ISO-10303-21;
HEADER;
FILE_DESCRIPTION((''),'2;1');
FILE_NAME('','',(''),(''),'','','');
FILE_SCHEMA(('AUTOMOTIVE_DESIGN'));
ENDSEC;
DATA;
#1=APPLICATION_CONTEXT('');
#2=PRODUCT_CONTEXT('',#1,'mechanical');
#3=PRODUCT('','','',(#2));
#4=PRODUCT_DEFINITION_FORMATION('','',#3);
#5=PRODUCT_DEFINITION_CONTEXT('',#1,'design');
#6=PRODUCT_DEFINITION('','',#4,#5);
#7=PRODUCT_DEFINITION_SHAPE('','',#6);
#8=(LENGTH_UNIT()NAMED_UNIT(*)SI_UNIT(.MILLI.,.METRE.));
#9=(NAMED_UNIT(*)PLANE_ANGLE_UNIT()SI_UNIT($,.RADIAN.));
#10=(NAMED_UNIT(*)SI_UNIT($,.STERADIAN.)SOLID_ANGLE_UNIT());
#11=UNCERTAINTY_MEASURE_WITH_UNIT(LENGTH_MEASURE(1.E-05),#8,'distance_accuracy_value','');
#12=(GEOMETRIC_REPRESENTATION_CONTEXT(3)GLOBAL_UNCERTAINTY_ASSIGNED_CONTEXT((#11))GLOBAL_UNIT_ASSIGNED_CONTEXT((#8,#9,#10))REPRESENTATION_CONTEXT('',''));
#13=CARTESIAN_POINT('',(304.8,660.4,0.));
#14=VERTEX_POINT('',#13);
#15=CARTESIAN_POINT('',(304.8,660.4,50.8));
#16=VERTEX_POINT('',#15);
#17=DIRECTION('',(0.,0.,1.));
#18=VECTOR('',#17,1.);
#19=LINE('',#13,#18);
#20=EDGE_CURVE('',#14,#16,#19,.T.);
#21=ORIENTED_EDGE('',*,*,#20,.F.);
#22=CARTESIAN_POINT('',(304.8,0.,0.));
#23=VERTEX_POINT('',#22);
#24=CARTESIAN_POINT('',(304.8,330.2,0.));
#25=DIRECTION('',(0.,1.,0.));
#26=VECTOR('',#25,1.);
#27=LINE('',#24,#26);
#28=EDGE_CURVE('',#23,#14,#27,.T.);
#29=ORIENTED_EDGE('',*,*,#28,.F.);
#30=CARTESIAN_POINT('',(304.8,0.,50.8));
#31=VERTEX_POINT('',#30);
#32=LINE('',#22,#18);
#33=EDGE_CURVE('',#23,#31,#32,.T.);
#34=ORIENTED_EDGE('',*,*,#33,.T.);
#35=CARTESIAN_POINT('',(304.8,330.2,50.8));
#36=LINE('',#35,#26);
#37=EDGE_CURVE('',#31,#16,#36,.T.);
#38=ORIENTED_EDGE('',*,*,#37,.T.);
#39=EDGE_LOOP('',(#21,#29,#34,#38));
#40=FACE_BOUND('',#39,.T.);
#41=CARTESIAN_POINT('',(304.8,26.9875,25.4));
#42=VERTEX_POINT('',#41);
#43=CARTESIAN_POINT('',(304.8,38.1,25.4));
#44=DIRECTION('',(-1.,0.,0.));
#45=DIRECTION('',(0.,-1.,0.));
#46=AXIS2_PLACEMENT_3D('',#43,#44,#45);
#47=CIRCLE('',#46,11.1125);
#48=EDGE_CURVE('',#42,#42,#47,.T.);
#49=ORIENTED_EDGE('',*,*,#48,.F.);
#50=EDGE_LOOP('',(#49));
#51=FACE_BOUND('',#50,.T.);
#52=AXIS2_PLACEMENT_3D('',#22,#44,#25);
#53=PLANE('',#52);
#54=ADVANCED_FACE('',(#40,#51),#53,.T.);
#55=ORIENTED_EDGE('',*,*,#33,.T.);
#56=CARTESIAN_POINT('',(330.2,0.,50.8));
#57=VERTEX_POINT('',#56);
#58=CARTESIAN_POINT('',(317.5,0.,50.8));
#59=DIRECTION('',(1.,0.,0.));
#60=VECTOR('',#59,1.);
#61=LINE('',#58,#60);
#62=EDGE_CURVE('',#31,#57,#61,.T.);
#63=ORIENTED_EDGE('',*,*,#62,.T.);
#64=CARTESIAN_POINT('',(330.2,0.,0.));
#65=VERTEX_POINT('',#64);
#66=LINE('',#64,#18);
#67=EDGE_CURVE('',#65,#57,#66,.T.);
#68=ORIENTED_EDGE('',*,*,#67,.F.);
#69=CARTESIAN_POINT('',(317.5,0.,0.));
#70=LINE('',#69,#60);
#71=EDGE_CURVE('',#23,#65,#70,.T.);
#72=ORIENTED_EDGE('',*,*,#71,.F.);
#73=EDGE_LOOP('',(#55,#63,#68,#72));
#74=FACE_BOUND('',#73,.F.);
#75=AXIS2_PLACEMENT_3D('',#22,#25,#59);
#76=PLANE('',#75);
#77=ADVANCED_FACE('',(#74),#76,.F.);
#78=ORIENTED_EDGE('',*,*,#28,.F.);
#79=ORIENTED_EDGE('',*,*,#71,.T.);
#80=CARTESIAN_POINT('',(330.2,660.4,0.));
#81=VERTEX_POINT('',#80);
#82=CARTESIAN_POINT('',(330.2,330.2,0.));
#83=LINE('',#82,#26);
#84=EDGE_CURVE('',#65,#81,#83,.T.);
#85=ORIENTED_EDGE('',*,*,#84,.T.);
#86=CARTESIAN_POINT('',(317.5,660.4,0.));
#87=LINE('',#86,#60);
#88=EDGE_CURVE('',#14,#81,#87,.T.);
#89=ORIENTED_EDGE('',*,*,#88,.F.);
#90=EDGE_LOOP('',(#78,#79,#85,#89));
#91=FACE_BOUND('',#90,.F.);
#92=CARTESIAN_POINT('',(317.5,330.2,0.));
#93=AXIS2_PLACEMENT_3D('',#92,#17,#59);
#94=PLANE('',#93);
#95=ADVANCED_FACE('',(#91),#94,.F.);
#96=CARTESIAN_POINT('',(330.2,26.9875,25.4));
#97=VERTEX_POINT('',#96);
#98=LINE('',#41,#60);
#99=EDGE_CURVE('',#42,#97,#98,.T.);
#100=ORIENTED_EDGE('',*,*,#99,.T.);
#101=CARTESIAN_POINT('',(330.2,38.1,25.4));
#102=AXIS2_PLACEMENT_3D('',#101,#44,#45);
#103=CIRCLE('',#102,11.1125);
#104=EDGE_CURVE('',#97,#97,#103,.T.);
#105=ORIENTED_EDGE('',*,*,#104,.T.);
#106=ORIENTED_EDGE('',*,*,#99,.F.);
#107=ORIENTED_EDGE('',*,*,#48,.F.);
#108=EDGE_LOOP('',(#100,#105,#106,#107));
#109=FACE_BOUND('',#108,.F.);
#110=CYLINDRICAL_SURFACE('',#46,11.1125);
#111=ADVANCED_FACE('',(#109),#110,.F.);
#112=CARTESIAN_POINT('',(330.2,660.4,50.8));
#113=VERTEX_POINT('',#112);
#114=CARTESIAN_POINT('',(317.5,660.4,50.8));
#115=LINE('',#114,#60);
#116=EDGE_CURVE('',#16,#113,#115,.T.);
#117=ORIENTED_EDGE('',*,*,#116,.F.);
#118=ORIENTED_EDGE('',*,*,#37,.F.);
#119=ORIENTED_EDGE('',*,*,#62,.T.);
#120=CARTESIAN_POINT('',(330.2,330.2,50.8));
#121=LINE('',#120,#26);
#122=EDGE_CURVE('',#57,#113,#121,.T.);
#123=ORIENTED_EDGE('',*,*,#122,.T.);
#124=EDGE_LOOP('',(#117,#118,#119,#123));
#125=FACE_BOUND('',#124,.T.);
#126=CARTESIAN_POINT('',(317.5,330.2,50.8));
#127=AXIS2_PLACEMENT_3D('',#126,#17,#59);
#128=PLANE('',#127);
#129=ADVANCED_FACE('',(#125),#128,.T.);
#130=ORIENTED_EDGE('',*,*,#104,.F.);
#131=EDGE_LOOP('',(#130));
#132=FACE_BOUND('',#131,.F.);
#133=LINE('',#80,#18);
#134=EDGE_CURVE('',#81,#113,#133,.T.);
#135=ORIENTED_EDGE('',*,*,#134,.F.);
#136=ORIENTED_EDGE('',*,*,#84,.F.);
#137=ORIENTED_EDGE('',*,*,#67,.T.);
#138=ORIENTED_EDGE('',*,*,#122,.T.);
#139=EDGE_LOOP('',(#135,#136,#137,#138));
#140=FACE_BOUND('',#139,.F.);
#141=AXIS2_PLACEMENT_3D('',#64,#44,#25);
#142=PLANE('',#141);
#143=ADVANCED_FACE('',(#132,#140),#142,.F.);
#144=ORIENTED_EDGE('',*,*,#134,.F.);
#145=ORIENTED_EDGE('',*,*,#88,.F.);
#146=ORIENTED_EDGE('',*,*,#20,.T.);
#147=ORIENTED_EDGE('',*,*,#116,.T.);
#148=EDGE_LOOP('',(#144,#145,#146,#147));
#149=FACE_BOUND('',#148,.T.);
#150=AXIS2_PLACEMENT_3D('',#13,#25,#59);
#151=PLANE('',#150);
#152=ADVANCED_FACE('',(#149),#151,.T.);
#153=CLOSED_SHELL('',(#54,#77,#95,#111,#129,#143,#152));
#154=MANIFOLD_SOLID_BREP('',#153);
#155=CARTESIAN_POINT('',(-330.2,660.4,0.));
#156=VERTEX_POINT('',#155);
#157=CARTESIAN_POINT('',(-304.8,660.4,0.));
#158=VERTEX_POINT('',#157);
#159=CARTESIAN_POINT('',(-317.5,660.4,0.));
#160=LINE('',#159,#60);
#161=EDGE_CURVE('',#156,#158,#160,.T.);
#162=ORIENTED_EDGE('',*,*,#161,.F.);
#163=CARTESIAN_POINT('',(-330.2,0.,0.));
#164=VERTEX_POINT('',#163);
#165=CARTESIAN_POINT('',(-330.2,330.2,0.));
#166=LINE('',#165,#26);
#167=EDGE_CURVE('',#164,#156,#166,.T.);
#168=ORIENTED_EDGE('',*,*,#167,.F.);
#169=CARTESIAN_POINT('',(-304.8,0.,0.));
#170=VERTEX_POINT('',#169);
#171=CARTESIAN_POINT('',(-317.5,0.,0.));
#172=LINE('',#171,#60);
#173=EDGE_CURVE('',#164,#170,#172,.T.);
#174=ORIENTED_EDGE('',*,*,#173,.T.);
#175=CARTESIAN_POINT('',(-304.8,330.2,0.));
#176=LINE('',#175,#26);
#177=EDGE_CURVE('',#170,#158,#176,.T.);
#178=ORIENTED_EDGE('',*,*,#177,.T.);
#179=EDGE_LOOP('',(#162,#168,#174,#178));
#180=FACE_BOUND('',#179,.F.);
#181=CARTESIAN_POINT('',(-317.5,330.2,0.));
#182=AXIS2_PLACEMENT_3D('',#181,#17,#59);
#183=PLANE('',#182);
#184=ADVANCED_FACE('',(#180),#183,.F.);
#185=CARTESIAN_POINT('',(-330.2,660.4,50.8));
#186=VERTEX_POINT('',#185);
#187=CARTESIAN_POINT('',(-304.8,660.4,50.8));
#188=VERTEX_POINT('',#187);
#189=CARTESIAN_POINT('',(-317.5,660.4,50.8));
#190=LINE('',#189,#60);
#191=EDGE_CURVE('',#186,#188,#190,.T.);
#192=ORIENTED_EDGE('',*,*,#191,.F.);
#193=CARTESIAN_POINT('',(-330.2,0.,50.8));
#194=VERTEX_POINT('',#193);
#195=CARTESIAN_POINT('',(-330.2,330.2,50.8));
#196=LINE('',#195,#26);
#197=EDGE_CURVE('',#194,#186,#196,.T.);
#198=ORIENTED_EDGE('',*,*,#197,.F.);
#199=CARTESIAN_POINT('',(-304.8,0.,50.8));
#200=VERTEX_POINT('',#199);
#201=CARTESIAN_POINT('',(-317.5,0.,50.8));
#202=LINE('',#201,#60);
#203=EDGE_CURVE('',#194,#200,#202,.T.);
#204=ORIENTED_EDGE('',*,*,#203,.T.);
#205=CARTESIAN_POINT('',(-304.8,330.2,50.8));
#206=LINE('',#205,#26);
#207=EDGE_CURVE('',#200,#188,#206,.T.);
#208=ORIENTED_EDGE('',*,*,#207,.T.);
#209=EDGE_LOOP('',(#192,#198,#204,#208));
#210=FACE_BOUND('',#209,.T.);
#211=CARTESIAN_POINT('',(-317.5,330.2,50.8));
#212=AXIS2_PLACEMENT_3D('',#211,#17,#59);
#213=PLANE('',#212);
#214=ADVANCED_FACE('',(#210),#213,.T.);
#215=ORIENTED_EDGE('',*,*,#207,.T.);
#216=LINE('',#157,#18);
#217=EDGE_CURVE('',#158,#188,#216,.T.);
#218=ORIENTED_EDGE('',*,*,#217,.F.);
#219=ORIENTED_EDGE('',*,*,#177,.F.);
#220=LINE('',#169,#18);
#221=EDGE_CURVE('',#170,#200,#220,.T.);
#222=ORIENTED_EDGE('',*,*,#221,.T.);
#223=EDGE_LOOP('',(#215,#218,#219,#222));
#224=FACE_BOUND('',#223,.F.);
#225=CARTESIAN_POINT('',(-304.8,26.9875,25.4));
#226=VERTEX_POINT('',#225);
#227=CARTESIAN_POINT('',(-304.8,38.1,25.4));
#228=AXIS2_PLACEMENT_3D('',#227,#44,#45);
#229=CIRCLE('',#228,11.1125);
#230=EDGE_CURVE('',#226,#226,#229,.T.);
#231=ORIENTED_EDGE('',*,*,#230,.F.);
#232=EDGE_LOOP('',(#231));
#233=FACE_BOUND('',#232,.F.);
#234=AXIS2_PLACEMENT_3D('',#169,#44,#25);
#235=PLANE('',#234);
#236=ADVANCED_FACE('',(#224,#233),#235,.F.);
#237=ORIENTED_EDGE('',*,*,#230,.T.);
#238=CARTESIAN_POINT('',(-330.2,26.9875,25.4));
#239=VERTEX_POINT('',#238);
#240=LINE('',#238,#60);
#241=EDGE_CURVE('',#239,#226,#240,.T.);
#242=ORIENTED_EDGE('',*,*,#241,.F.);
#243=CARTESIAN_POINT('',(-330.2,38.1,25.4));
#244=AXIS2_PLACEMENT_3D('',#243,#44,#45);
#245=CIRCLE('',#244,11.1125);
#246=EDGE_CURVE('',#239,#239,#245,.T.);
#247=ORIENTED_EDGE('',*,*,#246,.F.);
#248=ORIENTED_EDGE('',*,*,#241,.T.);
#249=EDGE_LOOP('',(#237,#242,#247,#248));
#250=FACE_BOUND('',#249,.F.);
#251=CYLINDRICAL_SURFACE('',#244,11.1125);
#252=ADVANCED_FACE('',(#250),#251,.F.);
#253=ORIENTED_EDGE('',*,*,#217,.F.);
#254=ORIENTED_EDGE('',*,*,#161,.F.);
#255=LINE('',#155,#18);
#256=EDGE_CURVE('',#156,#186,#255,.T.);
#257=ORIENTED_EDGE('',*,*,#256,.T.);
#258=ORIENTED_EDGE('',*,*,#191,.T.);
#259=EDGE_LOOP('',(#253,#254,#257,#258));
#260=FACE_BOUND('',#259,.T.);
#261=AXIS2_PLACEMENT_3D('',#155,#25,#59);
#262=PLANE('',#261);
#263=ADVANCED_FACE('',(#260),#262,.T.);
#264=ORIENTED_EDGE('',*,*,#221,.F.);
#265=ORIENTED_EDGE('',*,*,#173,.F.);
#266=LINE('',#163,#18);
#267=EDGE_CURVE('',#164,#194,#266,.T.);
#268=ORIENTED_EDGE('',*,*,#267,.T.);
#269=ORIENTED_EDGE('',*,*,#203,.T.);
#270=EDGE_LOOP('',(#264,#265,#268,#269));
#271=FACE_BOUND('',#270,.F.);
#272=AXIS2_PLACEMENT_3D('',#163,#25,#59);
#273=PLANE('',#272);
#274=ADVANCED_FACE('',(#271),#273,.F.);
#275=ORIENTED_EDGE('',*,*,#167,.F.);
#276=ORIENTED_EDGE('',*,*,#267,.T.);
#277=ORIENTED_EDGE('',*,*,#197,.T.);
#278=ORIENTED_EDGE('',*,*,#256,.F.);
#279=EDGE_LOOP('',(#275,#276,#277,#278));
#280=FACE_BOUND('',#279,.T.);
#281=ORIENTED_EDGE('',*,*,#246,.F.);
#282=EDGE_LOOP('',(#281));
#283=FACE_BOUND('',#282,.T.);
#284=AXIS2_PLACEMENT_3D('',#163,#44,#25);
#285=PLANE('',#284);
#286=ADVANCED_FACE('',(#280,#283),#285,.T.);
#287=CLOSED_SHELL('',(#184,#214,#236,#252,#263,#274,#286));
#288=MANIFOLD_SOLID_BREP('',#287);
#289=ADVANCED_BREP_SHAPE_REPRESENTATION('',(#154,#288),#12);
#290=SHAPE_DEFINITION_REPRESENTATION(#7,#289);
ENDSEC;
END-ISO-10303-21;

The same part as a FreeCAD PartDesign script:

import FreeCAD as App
import Part
import Sketcher
from FreeCAD import Vector
Q = App.Units.Quantity


def add_polygon(sketch, points):
    """Adds a closed chain of lines whose ends are joined by coincident constraints."""
    first, n = sketch.GeometryCount, len(points)
    for a, b in zip(points, points[1:] + points[:1]):
        sketch.addGeometry(Part.LineSegment(App.Vector(*a, 0), App.Vector(*b, 0)), False)
    for i in range(n):
        sketch.addConstraint(Sketcher.Constraint("Coincident", first + i, 2, first + (i + 1) % n, 1))

doc = App.newDocument("Part")
body = doc.addObject("PartDesign::Body", "Body")
body.AllowCompound = True

sketch1 = doc.addObject("Sketcher::SketchObject", "Sketch")
body.addObject(sketch1)
sketch1.AttachmentSupport = (doc.XY_Plane, [""])
sketch1.MapMode = "FlatFace"
add_polygon(sketch1, [(-330, 660), (-330, 0), (-305, 0), (-305, 660)])
add_polygon(sketch1, [(305, 660), (305, 0), (330, 0), (330, 660)])
sketch1.addConstraint(Sketcher.Constraint("Vertical", 0))
sketch1.addConstraint(Sketcher.Constraint("Horizontal", 1))
sketch1.addConstraint(Sketcher.Constraint("Vertical", 2))
sketch1.addConstraint(Sketcher.Constraint("Horizontal", 3))
sketch1.addConstraint(Sketcher.Constraint("Vertical", 4))
sketch1.addConstraint(Sketcher.Constraint("Horizontal", 5))
sketch1.addConstraint(Sketcher.Constraint("Vertical", 6))
sketch1.addConstraint(Sketcher.Constraint("Horizontal", 7))
sketch1.addConstraint(Sketcher.Constraint("Symmetric", 1, 2, 4, 2, -1, 1))
sketch1.addConstraint(Sketcher.Constraint("Symmetric", 0, 2, 5, 2, -2))
sketch1.addConstraint(Sketcher.Constraint("Horizontal", 3, 2, 6, 2))
sketch1.addConstraint(Sketcher.Constraint("DistanceX", 1, 1, 1, 2, Q("1 in")))
sketch1.addConstraint(Sketcher.Constraint("DistanceY", 0, 2, 0, 1, Q("26 in")))
sketch1.addConstraint(Sketcher.Constraint("DistanceX", 0, 2, -1, 1, Q("13 in")))
pad1 = doc.addObject("PartDesign::Pad", "Pad")
body.addObject(pad1)
pad1.Profile = sketch1
pad1.Length = Q("2 in")

sketch2 = doc.addObject("Sketcher::SketchObject", "Sketch001")
body.addObject(sketch2)
sketch2.AttachmentSupport = (doc.YZ_Plane, [""])
sketch2.MapMode = "FlatFace"
sketch2.AttachmentOffset = App.Placement(Vector(0, 0, 12 * 25.4), App.Rotation())
sketch2.addGeometry(Part.Circle(Vector(38, 25, 0), Vector(0, 0, 1), 11), False)
sketch2.addConstraint(Sketcher.Constraint("Diameter", 0, Q("0.875 in")))
sketch2.addConstraint(Sketcher.Constraint("DistanceY", -1, 1, 0, 3, Q("1 in")))
sketch2.addConstraint(Sketcher.Constraint("DistanceX", -1, 1, 0, 3, Q("1.5 in")))
pocket1 = doc.addObject("PartDesign::Pocket", "Pocket")
body.addObject(pocket1)
pocket1.Profile = sketch2
pocket1.Type = "ThroughAll"
pocket1.Reversed = True

sketch3 = doc.addObject("Sketcher::SketchObject", "Sketch002")
body.addObject(sketch3)
sketch3.AttachmentSupport = (doc.YZ_Plane, [""])
sketch3.MapMode = "FlatFace"
sketch3.AttachmentOffset = App.Placement(Vector(0, 0, -13 * 25.4), App.Rotation())
sketch3.addGeometry(Part.Circle(Vector(38, 25, 0), Vector(0, 0, 1), 11), False)
sketch3.addConstraint(Sketcher.Constraint("Diameter", 0, Q("0.875 in")))
sketch3.addConstraint(Sketcher.Constraint("DistanceY", -1, 1, 0, 3, Q("1 in")))
sketch3.addConstraint(Sketcher.Constraint("DistanceX", -1, 1, 0, 3, Q("1.5 in")))
pocket2 = doc.addObject("PartDesign::Pocket", "Pocket001")
body.addObject(pocket2)
pocket2.Profile = sketch3
pocket2.Type = "ThroughAll"
pocket2.Reversed = True

doc.recompute()
